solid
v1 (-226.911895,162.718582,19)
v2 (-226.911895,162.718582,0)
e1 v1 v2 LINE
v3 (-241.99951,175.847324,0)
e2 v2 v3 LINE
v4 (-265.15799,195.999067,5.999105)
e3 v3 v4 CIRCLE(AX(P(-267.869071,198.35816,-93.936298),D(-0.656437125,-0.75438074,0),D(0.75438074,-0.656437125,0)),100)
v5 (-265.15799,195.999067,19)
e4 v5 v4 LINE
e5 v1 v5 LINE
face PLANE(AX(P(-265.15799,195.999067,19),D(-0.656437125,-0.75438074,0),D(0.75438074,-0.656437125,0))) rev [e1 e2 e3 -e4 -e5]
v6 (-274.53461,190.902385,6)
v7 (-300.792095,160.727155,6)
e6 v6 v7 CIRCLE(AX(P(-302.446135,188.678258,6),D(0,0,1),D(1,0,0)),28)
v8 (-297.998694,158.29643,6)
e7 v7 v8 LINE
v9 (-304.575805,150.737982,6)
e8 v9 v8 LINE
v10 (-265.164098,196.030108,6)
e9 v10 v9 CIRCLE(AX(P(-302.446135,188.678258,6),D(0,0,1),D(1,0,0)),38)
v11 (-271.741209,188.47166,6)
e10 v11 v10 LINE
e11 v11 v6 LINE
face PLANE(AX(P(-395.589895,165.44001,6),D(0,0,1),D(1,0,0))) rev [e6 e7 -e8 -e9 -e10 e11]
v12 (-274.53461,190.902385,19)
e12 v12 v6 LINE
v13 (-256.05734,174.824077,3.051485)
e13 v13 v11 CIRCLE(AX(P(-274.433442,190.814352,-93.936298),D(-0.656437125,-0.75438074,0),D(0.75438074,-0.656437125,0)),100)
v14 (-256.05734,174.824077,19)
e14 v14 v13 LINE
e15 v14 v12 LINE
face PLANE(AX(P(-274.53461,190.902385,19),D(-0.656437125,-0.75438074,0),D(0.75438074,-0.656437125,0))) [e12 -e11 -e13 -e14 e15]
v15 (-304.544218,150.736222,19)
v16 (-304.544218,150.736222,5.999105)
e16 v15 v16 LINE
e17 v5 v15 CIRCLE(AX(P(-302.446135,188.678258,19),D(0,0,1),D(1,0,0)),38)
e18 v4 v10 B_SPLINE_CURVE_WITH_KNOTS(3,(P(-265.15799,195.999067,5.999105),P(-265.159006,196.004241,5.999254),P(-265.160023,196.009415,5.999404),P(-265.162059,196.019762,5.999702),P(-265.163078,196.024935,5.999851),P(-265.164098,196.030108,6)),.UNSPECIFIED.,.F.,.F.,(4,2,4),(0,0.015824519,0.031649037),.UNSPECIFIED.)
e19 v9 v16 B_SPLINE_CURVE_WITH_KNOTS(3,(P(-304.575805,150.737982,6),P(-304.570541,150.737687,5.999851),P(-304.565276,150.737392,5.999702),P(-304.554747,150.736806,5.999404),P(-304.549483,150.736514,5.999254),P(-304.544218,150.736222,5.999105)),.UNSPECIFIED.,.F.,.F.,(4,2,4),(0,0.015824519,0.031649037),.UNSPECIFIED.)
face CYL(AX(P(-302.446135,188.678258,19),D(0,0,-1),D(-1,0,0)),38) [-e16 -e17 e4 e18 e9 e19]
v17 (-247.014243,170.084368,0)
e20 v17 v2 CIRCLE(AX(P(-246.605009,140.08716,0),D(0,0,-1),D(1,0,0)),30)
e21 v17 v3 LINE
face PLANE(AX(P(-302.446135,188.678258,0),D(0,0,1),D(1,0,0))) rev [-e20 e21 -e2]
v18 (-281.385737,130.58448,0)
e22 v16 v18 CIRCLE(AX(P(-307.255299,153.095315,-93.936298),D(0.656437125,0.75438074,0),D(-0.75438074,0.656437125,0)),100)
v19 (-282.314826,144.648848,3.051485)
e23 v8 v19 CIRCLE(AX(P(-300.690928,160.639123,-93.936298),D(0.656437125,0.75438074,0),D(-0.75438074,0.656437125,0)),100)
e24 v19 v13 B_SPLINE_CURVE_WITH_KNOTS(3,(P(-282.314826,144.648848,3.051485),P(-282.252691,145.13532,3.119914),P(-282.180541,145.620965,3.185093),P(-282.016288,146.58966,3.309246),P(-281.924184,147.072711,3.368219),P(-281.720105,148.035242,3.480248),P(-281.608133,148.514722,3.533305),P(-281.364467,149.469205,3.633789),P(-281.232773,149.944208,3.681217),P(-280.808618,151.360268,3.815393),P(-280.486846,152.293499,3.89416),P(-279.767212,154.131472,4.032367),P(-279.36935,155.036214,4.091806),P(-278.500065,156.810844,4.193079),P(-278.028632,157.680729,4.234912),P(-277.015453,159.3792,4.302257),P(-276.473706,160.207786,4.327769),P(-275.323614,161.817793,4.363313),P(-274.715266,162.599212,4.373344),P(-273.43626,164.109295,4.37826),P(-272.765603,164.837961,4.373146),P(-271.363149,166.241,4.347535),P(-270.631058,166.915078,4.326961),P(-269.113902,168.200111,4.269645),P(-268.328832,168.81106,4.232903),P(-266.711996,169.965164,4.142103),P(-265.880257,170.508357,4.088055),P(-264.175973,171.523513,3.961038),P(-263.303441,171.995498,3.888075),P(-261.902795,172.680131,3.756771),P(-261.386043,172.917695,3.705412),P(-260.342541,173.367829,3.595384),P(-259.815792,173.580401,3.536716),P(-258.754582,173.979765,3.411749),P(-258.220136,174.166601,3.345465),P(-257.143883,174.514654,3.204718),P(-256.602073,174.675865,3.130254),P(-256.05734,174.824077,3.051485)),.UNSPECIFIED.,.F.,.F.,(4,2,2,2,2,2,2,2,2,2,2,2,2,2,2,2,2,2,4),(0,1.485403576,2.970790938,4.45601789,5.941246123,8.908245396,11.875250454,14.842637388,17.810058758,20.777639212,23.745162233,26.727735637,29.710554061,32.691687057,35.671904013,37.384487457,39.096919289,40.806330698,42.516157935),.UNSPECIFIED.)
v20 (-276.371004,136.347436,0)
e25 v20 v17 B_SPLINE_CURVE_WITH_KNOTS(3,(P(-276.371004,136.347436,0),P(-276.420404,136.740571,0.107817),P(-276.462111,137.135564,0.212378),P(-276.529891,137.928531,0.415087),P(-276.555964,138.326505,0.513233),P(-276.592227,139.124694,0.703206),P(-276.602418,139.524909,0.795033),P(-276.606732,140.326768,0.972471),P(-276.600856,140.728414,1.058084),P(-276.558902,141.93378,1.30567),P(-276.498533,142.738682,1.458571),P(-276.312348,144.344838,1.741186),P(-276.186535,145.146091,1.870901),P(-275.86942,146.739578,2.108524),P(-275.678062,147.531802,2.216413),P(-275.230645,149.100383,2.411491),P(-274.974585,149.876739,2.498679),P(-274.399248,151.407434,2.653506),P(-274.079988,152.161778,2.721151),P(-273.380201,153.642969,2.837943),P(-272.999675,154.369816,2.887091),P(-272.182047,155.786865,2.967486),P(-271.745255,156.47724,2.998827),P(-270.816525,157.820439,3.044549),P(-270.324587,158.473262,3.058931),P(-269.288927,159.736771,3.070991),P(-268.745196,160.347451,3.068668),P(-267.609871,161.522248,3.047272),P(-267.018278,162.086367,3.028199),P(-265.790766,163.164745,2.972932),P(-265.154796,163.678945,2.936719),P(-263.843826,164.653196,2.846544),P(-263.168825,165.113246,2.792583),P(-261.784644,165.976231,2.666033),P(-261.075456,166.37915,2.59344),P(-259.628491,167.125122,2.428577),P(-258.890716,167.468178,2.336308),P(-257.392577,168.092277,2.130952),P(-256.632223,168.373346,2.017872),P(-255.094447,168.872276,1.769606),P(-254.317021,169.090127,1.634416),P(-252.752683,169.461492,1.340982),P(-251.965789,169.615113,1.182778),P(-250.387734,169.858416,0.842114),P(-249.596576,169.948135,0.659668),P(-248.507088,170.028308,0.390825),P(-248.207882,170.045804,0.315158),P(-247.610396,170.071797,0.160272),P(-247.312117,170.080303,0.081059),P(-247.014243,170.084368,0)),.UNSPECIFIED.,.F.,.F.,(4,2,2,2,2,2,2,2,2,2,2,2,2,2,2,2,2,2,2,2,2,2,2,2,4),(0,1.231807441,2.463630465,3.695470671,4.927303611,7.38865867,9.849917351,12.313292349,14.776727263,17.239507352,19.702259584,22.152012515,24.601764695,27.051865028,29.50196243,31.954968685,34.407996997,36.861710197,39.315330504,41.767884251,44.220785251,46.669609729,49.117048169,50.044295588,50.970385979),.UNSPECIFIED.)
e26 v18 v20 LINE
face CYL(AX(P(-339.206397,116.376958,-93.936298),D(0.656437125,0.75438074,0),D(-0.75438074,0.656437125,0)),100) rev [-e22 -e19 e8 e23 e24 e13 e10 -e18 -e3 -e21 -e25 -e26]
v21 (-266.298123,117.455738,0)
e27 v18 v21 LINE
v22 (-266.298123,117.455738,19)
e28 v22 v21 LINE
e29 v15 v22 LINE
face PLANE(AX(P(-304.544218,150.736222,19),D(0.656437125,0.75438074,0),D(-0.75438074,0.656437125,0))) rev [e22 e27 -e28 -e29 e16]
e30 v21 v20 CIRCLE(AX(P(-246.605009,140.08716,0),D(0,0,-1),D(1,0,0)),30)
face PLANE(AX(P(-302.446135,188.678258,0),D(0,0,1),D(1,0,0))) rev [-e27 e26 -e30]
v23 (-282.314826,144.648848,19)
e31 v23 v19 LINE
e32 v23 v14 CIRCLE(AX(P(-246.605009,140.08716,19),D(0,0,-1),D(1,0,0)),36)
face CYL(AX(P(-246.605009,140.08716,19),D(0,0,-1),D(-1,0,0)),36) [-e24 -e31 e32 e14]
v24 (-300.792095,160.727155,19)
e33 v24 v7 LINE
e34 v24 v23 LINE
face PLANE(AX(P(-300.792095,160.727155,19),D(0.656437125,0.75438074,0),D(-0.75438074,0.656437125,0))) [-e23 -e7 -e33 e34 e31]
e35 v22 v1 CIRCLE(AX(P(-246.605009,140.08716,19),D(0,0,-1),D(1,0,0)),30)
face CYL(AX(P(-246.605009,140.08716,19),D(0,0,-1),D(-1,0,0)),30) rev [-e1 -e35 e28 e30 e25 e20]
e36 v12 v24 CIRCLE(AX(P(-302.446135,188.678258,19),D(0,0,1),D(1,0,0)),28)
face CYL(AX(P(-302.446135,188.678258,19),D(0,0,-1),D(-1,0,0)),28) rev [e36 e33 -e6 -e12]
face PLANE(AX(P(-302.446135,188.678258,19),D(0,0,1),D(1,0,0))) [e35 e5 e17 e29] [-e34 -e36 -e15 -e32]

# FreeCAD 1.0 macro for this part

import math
import FreeCAD as App
import Part
import Sketcher
Q = App.Units.Quantity

doc = App.newDocument("Part")
params = doc.addObject("Spreadsheet::Sheet", "Params")
for row, (alias, value) in enumerate([
    ("sketch1_radius", "38 mm"),
    ("sketch1_radius2", "30 mm"),
    ("sketch1_radius3", "28 mm"),
    ("sketch1_radius4", "36 mm"),
    ("pad1_length", "19 mm"),
    ("sketch2_radius", "100 mm"),
], start=1):
    params.set(f"A{row}", alias)
    params.set(f"B{row}", "=" + value)
    params.setAlias(f"B{row}", alias)

body = doc.addObject("PartDesign::Body", "Body")

# Sketch on XY plane
sketch1 = body.newObject("Sketcher::SketchObject", "Sketch")
sketch1.AttachmentSupport = (doc.getObject("XY_Plane"), [""])
sketch1.MapMode = "FlatFace"
sketch1.addGeometry(Part.LineSegment(App.Vector(-226.911895, 162.718582, 0), App.Vector(-265.15799, 195.999067, 0)), False)
sketch1.addGeometry(Part.ArcOfCircle(Part.Circle(App.Vector(-302.446135, 188.678258, 0), App.Vector(0, 0, 1), 38), math.radians(11.107643), math.radians(266.834936)), False)
sketch1.addGeometry(Part.LineSegment(App.Vector(-304.544218, 150.736222, 0), App.Vector(-266.298123, 117.455738, 0)), False)
sketch1.addGeometry(Part.ArcOfCircle(Part.Circle(App.Vector(-246.605009, 140.08716, 0), App.Vector(0, 0, 1), 30), math.radians(48.97129), math.radians(228.97129)), False)
sketch1.addGeometry(Part.ArcOfCircle(Part.Circle(App.Vector(-302.446135, 188.678258, 0), App.Vector(0, 0, 1), 28), math.radians(4.555981), math.radians(273.386598)), False)
sketch1.addGeometry(Part.LineSegment(App.Vector(-274.53461, 190.902385, 0), App.Vector(-256.05734, 174.824077, 0)), False)
sketch1.addGeometry(Part.ArcOfCircle(Part.Circle(App.Vector(-246.605009, 140.08716, 0), App.Vector(0, 0, 1), 36), math.radians(105.222301), math.radians(172.720278)), False)
sketch1.addGeometry(Part.LineSegment(App.Vector(-282.314826, 144.648848, 0), App.Vector(-300.792095, 160.727155, 0)), False)
sketch1.addConstraint(Sketcher.Constraint("Coincident", 0, 2, 1, 1))
sketch1.addConstraint(Sketcher.Constraint("Coincident", 1, 2, 2, 1))
sketch1.addConstraint(Sketcher.Constraint("Tangent", 2, 2, 3, 2))
sketch1.addConstraint(Sketcher.Constraint("Tangent", 3, 1, 0, 1))
sketch1.addConstraint(Sketcher.Constraint("Coincident", 4, 1, 5, 1))
sketch1.addConstraint(Sketcher.Constraint("Coincident", 5, 2, 6, 1))
sketch1.addConstraint(Sketcher.Constraint("Coincident", 6, 2, 7, 1))
sketch1.addConstraint(Sketcher.Constraint("Coincident", 7, 2, 4, 2))
sketch1.addConstraint(Sketcher.Constraint("Coincident", 4, 3, 1, 3))
sketch1.addConstraint(Sketcher.Constraint("Coincident", 6, 3, 3, 3))
sketch1.addConstraint(Sketcher.Constraint("Parallel", 0, 2))
sketch1.addConstraint(Sketcher.Constraint("Parallel", 2, 5))
sketch1.addConstraint(Sketcher.Constraint("Parallel", 5, 7))
sketch1.addConstraint(Sketcher.Constraint("Equal", 0, 2))
sketch1.addConstraint(Sketcher.Constraint("Equal", 5, 7))
sketch1.addConstraint(Sketcher.Constraint("Radius", 1, Q("38 mm")))
sketch1.addConstraint(Sketcher.Constraint("Radius", 3, Q("30 mm")))
sketch1.addConstraint(Sketcher.Constraint("Radius", 4, Q("28 mm")))
sketch1.addConstraint(Sketcher.Constraint("Radius", 6, Q("36 mm")))
sketch1.addConstraint(Sketcher.Constraint("DistanceY", 3, 3, 1, 3, Q("48.591098 mm")))
sketch1.addConstraint(Sketcher.Constraint("DistanceX", 3, 3, -1, 1, Q("246.605009 mm")))
sketch1.addConstraint(Sketcher.Constraint("DistanceY", -1, 1, 3, 3, Q("140.08716 mm")))
sketch1.addConstraint(Sketcher.Constraint("DistanceX", 0, 2, -1, 1, Q("265.15799 mm")))
sketch1.addConstraint(Sketcher.Constraint("DistanceX", 4, 1, -1, 1, Q("274.53461 mm")))
sketch1.setExpression("Constraints[15]", "Params.sketch1_radius")
sketch1.setExpression("Constraints[16]", "Params.sketch1_radius2")
sketch1.setExpression("Constraints[17]", "Params.sketch1_radius3")
sketch1.setExpression("Constraints[18]", "Params.sketch1_radius4")
pad1 = body.newObject("PartDesign::Pad", "Pad")
pad1.Profile = sketch1
pad1.setExpression("Length", "Params.pad1_length")

# Sketch on an angled plane
sketch2 = body.newObject("Sketcher::SketchObject", "Sketch001")
sketch2.Placement = App.Placement(App.Vector(-17.199721, -19.766003, 0), App.Rotation(App.Vector(0.75438074, -0.656437125, 0), App.Vector(0, 0, -1), App.Vector(0.656437125, 0.75438074, 0), "ZXY"))
sketch2.addGeometry(Part.LineSegment(App.Vector(-297.992481, 14.142127, 0), App.Vector(-407.026362, 14.142127, 0)), False)
sketch2.addGeometry(Part.LineSegment(App.Vector(-407.026362, 14.142127, 0), App.Vector(-407.026362, -6, 0)), False)
sketch2.addGeometry(Part.LineSegment(App.Vector(-407.026362, -6, 0), App.Vector(-328.716129, -6, 0)), False)
sketch2.addGeometry(Part.ArcOfCircle(Part.Circle(App.Vector(-332.284928, 93.936298, 0), App.Vector(0, 0, 1), 100), math.radians(-87.954794), math.radians(-69.944851)), False)
sketch2.addGeometry(Part.LineSegment(App.Vector(-297.992481, 0, 0), App.Vector(-297.992481, 14.142127, 0)), False)
sketch2.addConstraint(Sketcher.Constraint("Coincident", 0, 2, 1, 1))
sketch2.addConstraint(Sketcher.Constraint("Coincident", 1, 2, 2, 1))
sketch2.addConstraint(Sketcher.Constraint("Coincident", 2, 2, 3, 1))
sketch2.addConstraint(Sketcher.Constraint("Coincident", 3, 2, 4, 1))
sketch2.addConstraint(Sketcher.Constraint("Coincident", 4, 2, 0, 1))
sketch2.addConstraint(Sketcher.Constraint("Horizontal", 0))
sketch2.addConstraint(Sketcher.Constraint("Vertical", 1))
sketch2.addConstraint(Sketcher.Constraint("Horizontal", 2))
sketch2.addConstraint(Sketcher.Constraint("Vertical", 4))
sketch2.addConstraint(Sketcher.Constraint("PointOnObject", 3, 2, -1))
sketch2.addConstraint(Sketcher.Constraint("Radius", 3, Q("100 mm")))
sketch2.addConstraint(Sketcher.Constraint("DistanceY", 1, 2, -1, 1, Q("6 mm")))
sketch2.addConstraint(Sketcher.Constraint("DistanceX", 0, 2, 0, 1, Q("109.033881 mm")))
sketch2.addConstraint(Sketcher.Constraint("DistanceY", -1, 1, 3, 3, Q("93.936298 mm")))
sketch2.addConstraint(Sketcher.Constraint("DistanceY", 1, 2, 1, 1, Q("20.142127 mm")))
sketch2.addConstraint(Sketcher.Constraint("DistanceX", 3, 3, -1, 1, Q("332.284928 mm")))
sketch2.setExpression("Constraints[10]", "Params.sketch2_radius")
pocket1 = body.newObject("PartDesign::Pocket", "Pocket")
pocket1.Profile = sketch2
pocket1.Type = "ThroughAll"
pocket1.Midplane = True

doc.recompute()
